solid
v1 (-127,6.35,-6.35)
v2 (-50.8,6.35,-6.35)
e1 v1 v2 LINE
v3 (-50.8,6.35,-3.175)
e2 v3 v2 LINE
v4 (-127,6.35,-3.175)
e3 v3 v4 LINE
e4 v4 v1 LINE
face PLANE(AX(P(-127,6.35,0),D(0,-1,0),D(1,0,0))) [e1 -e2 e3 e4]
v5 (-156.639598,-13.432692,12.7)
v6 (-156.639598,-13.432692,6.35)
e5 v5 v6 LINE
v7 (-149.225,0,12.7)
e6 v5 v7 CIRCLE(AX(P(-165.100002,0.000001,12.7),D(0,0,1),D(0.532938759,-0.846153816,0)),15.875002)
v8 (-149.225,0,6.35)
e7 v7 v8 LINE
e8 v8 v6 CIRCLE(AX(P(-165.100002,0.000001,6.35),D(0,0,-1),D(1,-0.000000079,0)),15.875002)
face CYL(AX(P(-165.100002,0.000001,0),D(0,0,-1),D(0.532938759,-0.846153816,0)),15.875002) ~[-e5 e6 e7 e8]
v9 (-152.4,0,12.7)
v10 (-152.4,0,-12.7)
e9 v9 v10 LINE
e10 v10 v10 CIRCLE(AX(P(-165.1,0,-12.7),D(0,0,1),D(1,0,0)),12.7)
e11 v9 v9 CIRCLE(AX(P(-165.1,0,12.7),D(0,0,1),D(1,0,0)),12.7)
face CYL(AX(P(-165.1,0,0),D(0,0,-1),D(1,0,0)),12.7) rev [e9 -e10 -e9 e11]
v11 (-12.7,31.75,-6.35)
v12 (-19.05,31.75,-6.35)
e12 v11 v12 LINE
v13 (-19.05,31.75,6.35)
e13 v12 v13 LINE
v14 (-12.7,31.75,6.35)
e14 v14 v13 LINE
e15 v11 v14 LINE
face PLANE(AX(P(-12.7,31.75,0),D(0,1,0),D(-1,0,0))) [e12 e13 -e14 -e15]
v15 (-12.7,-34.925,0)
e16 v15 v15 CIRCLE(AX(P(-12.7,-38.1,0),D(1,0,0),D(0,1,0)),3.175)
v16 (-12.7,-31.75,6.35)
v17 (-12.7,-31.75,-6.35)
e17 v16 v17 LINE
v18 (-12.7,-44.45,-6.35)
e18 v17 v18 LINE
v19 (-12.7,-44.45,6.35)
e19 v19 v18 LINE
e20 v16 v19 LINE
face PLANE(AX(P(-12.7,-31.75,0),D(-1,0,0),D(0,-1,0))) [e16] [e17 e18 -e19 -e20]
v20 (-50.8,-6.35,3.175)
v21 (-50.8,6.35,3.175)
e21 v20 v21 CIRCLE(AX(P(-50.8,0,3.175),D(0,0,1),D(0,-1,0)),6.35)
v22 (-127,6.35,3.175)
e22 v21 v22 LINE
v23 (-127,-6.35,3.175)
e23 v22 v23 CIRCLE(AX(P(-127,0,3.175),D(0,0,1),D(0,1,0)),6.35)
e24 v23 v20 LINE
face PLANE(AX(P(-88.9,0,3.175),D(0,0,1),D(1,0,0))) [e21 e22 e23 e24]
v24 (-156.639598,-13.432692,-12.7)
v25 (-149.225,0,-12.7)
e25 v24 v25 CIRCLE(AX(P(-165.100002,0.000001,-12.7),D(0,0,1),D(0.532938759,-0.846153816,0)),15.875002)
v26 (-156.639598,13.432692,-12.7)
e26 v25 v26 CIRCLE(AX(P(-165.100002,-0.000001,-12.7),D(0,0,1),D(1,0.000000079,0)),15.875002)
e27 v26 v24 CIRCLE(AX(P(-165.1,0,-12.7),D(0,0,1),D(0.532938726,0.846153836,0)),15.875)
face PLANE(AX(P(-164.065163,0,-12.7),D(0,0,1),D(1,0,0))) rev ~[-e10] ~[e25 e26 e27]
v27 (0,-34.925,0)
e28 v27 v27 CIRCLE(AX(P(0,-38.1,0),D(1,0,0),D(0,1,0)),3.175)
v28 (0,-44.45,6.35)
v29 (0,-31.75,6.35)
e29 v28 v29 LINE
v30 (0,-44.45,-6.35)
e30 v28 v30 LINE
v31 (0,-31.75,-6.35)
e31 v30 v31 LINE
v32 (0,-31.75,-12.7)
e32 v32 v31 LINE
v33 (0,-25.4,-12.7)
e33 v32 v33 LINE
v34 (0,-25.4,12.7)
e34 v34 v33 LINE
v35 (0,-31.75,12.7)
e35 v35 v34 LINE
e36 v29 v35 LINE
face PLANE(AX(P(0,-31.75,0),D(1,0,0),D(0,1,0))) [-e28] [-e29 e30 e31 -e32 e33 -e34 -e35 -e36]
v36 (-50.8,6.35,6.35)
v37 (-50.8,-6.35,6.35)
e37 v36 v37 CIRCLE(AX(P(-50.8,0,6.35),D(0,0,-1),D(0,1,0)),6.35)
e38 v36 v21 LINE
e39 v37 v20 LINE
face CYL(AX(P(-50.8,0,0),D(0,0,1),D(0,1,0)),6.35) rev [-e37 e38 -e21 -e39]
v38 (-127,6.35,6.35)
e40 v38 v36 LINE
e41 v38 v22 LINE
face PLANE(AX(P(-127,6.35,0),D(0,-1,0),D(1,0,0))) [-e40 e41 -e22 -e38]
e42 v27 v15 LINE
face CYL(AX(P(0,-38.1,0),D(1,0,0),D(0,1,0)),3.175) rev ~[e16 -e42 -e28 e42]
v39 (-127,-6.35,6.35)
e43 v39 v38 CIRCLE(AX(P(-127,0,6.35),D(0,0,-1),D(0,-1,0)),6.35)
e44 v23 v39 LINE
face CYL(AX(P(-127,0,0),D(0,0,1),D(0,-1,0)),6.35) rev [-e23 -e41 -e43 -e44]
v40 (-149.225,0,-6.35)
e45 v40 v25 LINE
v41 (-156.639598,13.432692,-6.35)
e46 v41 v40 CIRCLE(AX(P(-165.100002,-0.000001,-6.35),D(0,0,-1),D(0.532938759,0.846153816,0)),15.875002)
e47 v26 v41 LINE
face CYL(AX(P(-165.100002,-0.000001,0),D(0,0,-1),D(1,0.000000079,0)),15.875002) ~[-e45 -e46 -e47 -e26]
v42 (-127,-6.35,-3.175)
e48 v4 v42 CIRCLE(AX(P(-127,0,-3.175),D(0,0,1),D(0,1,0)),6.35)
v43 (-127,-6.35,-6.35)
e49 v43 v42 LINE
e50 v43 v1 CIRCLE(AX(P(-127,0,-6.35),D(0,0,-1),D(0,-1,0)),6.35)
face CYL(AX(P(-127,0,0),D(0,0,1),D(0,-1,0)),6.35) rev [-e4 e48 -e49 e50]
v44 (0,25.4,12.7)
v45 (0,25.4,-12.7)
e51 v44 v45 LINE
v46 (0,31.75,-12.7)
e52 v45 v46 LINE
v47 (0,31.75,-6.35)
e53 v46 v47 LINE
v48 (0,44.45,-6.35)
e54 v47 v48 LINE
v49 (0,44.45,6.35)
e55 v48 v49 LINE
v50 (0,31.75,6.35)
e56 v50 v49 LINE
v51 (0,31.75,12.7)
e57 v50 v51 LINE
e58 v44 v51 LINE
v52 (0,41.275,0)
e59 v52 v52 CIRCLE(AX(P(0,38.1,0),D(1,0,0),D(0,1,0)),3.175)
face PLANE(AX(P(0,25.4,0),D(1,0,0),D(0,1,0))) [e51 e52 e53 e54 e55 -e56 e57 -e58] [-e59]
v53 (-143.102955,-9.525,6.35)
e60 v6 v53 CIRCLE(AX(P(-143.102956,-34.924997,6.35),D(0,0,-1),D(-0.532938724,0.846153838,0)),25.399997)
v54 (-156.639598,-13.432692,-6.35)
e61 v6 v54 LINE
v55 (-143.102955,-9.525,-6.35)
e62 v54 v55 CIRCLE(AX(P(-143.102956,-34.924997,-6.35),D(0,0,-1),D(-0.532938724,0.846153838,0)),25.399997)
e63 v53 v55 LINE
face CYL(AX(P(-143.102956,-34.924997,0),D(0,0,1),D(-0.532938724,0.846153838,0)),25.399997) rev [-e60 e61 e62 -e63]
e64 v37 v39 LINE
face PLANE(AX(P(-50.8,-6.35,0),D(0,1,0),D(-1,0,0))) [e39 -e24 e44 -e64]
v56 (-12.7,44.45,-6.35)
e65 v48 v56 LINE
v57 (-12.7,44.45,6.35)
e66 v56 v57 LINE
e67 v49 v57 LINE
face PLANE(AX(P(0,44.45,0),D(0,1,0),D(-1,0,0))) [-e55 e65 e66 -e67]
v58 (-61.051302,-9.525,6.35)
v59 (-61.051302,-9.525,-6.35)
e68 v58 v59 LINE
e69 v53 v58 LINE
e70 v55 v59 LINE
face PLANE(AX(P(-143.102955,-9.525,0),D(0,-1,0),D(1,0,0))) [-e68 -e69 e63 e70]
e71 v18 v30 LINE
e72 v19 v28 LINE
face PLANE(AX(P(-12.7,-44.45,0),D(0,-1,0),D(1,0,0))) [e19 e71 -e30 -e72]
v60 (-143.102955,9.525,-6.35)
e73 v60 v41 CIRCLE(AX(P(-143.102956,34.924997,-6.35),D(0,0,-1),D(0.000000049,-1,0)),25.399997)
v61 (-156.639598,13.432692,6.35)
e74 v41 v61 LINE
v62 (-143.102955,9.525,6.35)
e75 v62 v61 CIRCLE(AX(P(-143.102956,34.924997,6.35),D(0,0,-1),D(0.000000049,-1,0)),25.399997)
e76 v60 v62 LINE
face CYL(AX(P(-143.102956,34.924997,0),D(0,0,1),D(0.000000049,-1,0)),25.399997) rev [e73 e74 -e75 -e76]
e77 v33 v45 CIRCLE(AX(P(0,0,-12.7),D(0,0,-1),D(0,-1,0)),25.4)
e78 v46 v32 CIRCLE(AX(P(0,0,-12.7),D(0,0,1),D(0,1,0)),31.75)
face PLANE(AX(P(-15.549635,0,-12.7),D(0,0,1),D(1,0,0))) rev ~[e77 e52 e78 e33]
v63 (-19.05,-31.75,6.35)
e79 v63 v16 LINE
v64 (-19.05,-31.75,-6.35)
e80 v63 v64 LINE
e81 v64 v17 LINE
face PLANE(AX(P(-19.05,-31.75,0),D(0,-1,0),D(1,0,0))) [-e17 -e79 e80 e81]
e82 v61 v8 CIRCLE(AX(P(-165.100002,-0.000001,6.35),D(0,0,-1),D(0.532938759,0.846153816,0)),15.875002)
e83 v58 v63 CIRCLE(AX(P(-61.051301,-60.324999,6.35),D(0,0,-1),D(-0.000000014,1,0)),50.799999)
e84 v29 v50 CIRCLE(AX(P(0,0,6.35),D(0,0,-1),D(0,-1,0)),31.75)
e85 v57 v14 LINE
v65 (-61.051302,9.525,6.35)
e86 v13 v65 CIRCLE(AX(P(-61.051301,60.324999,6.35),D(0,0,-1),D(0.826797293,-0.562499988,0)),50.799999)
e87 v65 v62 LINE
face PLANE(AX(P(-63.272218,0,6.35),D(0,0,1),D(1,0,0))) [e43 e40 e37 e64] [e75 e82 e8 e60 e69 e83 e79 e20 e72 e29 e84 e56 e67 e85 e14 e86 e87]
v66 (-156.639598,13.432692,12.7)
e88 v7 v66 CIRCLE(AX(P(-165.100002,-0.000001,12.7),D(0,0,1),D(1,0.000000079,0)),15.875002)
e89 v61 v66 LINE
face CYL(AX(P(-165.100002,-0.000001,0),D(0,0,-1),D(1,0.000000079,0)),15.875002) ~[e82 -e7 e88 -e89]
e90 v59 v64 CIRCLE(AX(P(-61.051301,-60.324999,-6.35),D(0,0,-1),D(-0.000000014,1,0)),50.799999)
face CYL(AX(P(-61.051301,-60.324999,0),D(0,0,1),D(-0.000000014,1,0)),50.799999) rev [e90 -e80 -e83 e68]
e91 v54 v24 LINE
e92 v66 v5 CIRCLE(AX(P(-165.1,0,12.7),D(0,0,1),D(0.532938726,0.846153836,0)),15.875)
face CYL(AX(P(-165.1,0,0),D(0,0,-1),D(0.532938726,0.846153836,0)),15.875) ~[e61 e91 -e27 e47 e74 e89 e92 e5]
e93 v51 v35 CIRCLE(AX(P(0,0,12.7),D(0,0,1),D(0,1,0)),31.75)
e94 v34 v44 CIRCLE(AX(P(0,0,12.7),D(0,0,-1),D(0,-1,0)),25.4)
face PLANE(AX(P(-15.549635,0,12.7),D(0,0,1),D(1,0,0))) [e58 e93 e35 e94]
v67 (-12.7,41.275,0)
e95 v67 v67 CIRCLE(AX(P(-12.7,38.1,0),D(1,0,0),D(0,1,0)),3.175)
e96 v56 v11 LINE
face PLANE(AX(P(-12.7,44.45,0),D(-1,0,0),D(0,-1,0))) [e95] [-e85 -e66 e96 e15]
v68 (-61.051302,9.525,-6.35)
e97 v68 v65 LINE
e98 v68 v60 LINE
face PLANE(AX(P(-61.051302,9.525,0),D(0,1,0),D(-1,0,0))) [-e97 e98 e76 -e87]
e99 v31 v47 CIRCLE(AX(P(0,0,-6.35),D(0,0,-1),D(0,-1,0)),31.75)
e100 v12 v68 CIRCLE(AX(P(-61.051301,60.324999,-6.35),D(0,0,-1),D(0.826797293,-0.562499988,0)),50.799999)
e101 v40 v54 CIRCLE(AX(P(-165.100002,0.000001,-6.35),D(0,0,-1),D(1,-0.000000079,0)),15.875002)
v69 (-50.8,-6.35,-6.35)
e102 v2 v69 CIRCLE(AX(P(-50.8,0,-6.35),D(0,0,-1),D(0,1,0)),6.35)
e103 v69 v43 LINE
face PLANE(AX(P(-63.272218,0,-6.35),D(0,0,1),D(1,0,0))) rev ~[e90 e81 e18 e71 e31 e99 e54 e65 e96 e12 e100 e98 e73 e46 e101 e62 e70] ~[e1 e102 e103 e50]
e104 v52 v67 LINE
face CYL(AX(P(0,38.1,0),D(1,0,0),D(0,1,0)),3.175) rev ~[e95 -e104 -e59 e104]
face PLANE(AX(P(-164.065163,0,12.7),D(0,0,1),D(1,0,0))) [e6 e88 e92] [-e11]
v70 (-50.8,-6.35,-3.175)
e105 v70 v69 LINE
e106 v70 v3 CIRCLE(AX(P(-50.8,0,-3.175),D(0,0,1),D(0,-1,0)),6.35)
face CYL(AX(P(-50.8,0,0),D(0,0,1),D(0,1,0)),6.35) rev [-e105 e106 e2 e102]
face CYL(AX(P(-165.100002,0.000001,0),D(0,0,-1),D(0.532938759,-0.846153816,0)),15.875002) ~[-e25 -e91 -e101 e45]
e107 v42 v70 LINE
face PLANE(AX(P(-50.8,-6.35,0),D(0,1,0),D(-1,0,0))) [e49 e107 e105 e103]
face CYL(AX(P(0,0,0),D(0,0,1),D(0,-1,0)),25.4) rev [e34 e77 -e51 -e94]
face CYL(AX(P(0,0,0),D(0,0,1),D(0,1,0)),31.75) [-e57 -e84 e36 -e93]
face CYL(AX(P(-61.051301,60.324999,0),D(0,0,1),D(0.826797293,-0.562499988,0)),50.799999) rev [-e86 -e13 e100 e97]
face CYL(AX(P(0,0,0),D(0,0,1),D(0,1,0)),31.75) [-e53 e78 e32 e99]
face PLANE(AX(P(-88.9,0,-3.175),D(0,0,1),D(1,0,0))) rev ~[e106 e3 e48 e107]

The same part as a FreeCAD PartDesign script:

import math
import FreeCAD as App
import Part
import Sketcher
from FreeCAD import Vector
Q = App.Units.Quantity

doc = App.newDocument("Part")
params = doc.addObject("Spreadsheet::Sheet", "Params")
for row, (alias, value) in enumerate([
    ("sketch1_radius", "1.9999999 in"),
    ("sketch1_radius2", "0.9999999 in"),
    ("sketch1_width", "3 in"),
    ("sketch1_radius3", "1.25 in"),
    ("sketch1_radius4", "0.25 in"),
    ("pad1_length", "0.5 in"),
    ("sketch2_diameter", "1 in"),
    ("sketch2_radius", "1 in"),
    ("sketch2_radius2", "1.25 in"),
    ("sketch2_radius3", "0.6250001 in"),
    ("pad2_length", "1 in"),
    ("sketch3_width", "3 in"),
    ("sketch3_radius", "0.25 in"),
    ("pad3_length", "0.25 in"),
    ("sketch4_diameter", "0.25 in"),
], start=1):
    params.set(f"A{row}", alias)
    params.set(f"B{row}", "=" + value)
    params.setAlias(f"B{row}", alias)

body = doc.addObject("PartDesign::Body", "Body")

sketch1 = body.newObject("Sketcher::SketchObject", "Sketch")
sketch1.AttachmentSupport = (doc.getObject("XY_Plane"), [""])
sketch1.MapMode = "FlatFace"
sketch1.addGeometry(Part.ArcOfCircle(Part.Circle(Vector(0, 0, 0), Vector(0, 0, 1), 32), math.radians(90), math.radians(270)), False)
sketch1.addGeometry(Part.LineSegment(Vector(0, 32, 0), Vector(0, 44, 0)), False)
sketch1.addGeometry(Part.LineSegment(Vector(0, 44, 0), Vector(-13, 44, 0)), False)
sketch1.addGeometry(Part.LineSegment(Vector(-13, 44, 0), Vector(-13, 32, 0)), False)
sketch1.addGeometry(Part.LineSegment(Vector(-13, 32, 0), Vector(-19, 32, 0)), False)
sketch1.addGeometry(Part.ArcOfCircle(Part.Circle(Vector(-61, 60, 0), Vector(0, 0, 1), 51), math.radians(-90), math.radians(-34)), False)
sketch1.addGeometry(Part.LineSegment(Vector(-61, 10, 0), Vector(-143, 10, 0)), False)
sketch1.addGeometry(Part.ArcOfCircle(Part.Circle(Vector(-143, 35, 0), Vector(0, 0, 1), 25), math.radians(-122), math.radians(-90)), False)
sketch1.addGeometry(Part.ArcOfCircle(Part.Circle(Vector(-165, 0, 0), Vector(0, 0, 1), 16), math.radians(0), math.radians(58)), False)
sketch1.addGeometry(Part.ArcOfCircle(Part.Circle(Vector(-165, 0, 0), Vector(0, 0, 1), 16), math.radians(-58), math.radians(0)), False)
sketch1.addGeometry(Part.ArcOfCircle(Part.Circle(Vector(-143, -35, 0), Vector(0, 0, 1), 25), math.radians(90), math.radians(122)), False)
sketch1.addGeometry(Part.LineSegment(Vector(-143, -10, 0), Vector(-61, -10, 0)), False)
sketch1.addGeometry(Part.ArcOfCircle(Part.Circle(Vector(-61, -60, 0), Vector(0, 0, 1), 51), math.radians(34), math.radians(90)), False)
sketch1.addGeometry(Part.LineSegment(Vector(-19, -32, 0), Vector(-13, -32, 0)), False)
sketch1.addGeometry(Part.LineSegment(Vector(-13, -32, 0), Vector(-13, -44, 0)), False)
sketch1.addGeometry(Part.LineSegment(Vector(-13, -44, 0), Vector(0, -44, 0)), False)
sketch1.addGeometry(Part.LineSegment(Vector(0, -44, 0), Vector(0, -32, 0)), False)
sketch1.addGeometry(Part.LineSegment(Vector(-51, -6, 0), Vector(-127, -6, 0)), False)
sketch1.addGeometry(Part.ArcOfCircle(Part.Circle(Vector(-127, 0, 0), Vector(0, 0, 1), 6), math.radians(90), math.radians(270)), False)
sketch1.addGeometry(Part.LineSegment(Vector(-127, 6, 0), Vector(-51, 6, 0)), False)
sketch1.addGeometry(Part.ArcOfCircle(Part.Circle(Vector(-51, 0, 0), Vector(0, 0, 1), 6), math.radians(-90), math.radians(90)), False)
sketch1.addConstraint(Sketcher.Constraint("Coincident", 0, 1, 1, 1))
sketch1.addConstraint(Sketcher.Constraint("Coincident", 1, 2, 2, 1))
sketch1.addConstraint(Sketcher.Constraint("Coincident", 2, 2, 3, 1))
sketch1.addConstraint(Sketcher.Constraint("Coincident", 3, 2, 4, 1))
sketch1.addConstraint(Sketcher.Constraint("Coincident", 4, 2, 5, 2))
sketch1.addConstraint(Sketcher.Constraint("Tangent", 5, 1, 6, 1))
sketch1.addConstraint(Sketcher.Constraint("Tangent", 6, 2, 7, 2))
sketch1.addConstraint(Sketcher.Constraint("Tangent", 7, 1, 8, 2))
sketch1.addConstraint(Sketcher.Constraint("Tangent", 8, 1, 9, 2))
sketch1.addConstraint(Sketcher.Constraint("Tangent", 9, 1, 10, 2))
sketch1.addConstraint(Sketcher.Constraint("Tangent", 10, 1, 11, 1))
sketch1.addConstraint(Sketcher.Constraint("Tangent", 11, 2, 12, 2))
sketch1.addConstraint(Sketcher.Constraint("Coincident", 12, 1, 13, 1))
sketch1.addConstraint(Sketcher.Constraint("Coincident", 13, 2, 14, 1))
sketch1.addConstraint(Sketcher.Constraint("Coincident", 14, 2, 15, 1))
sketch1.addConstraint(Sketcher.Constraint("Coincident", 15, 2, 16, 1))
sketch1.addConstraint(Sketcher.Constraint("Coincident", 16, 2, 0, 2))
sketch1.addConstraint(Sketcher.Constraint("Tangent", 17, 2, 18, 2))
sketch1.addConstraint(Sketcher.Constraint("Tangent", 18, 1, 19, 1))
sketch1.addConstraint(Sketcher.Constraint("Tangent", 19, 2, 20, 2))
sketch1.addConstraint(Sketcher.Constraint("Tangent", 20, 1, 17, 1))
sketch1.addConstraint(Sketcher.Constraint("Vertical", 1))
sketch1.addConstraint(Sketcher.Constraint("Horizontal", 2))
sketch1.addConstraint(Sketcher.Constraint("Vertical", 3))
sketch1.addConstraint(Sketcher.Constraint("Horizontal", 4))
sketch1.addConstraint(Sketcher.Constraint("Horizontal", 6))
sketch1.addConstraint(Sketcher.Constraint("Horizontal", 11))
sketch1.addConstraint(Sketcher.Constraint("Horizontal", 13))
sketch1.addConstraint(Sketcher.Constraint("Vertical", 14))
sketch1.addConstraint(Sketcher.Constraint("Horizontal", 15))
sketch1.addConstraint(Sketcher.Constraint("Vertical", 16))
sketch1.addConstraint(Sketcher.Constraint("Horizontal", 17))
sketch1.addConstraint(Sketcher.Constraint("Horizontal", 19))
sketch1.addConstraint(Sketcher.Constraint("Coincident", 0, 3, -1, 1))
sketch1.addConstraint(Sketcher.Constraint("Equal", 8, 9))
sketch1.addConstraint(Sketcher.Constraint("Equal", 7, 10))
sketch1.addConstraint(Sketcher.Constraint("Equal", 5, 12))
sketch1.addConstraint(Sketcher.Constraint("Symmetric", 1, 2, 15, 2, -1, 1))
sketch1.addConstraint(Sketcher.Constraint("Symmetric", 7, 3, 10, 3, -1))
sketch1.addConstraint(Sketcher.Constraint("Symmetric", 4, 2, 12, 1, -1))
sketch1.addConstraint(Sketcher.Constraint("PointOnObject", 18, 3, -1))
sketch1.addConstraint(Sketcher.Constraint("PointOnObject", 0, 1, -2))
sketch1.addConstraint(Sketcher.Constraint("PointOnObject", 8, 1, -1))
sketch1.addConstraint(Sketcher.Constraint("Horizontal", 0, 1, 3, 2))
sketch1.addConstraint(Sketcher.Constraint("Vertical", 3, 2, 13, 2))
sketch1.addConstraint(Sketcher.Constraint("Equal", 15, 1))
sketch1.addConstraint(Sketcher.Constraint("Radius", 5, Q("1.9999999 in")))
sketch1.addConstraint(Sketcher.Constraint("Radius", 7, Q("0.9999999 in")))
sketch1.addConstraint(Sketcher.Constraint("DistanceX", 17, 2, 17, 1, Q("3 in")))
sketch1.addConstraint(Sketcher.Constraint("Radius", 0, Q("1.25 in")))
sketch1.addConstraint(Sketcher.Constraint("Radius", 18, Q("0.25 in")))
sketch1.addConstraint(Sketcher.Constraint("DistanceX", 2, 2, 2, 1, Q("0.5 in")))
sketch1.addConstraint(Sketcher.Constraint("DistanceX", 18, 3, -1, 1, Q("5 in")))
sketch1.addConstraint(Sketcher.Constraint("Radius", 8, Q("0.6250001 in")))
sketch1.addConstraint(Sketcher.Constraint("DistanceX", 4, 2, 4, 1, Q("0.25 in")))
sketch1.addConstraint(Sketcher.Constraint("DistanceX", 8, 3, -1, 1, Q("6.5000001 in")))
sketch1.addConstraint(Sketcher.Constraint("DistanceY", 10, 3, 5, 3, Q("3.7499998 in")))
sketch1.setExpression("Constraints[46]", "Params.sketch1_radius")
sketch1.setExpression("Constraints[47]", "Params.sketch1_radius2")
sketch1.setExpression("Constraints[48]", "Params.sketch1_width")
sketch1.setExpression("Constraints[49]", "Params.sketch1_radius3")
sketch1.setExpression("Constraints[50]", "Params.sketch1_radius4")
pad1 = body.newObject("PartDesign::Pad", "Pad")
pad1.Profile = sketch1
pad1.setExpression("Length", "Params.pad1_length")
pad1.Midplane = True

sketch2 = body.newObject("Sketcher::SketchObject", "Sketch001")
sketch2.AttachmentSupport = (doc.getObject("XY_Plane"), [""])
sketch2.MapMode = "FlatFace"
sketch2.addGeometry(Part.ArcOfCircle(Part.Circle(Vector(-165, 0, 0), Vector(0, 0, 1), 16), math.radians(0), math.radians(58)), False)
sketch2.addGeometry(Part.ArcOfCircle(Part.Circle(Vector(-165, 0, 0), Vector(0, 0, 1), 16), math.radians(58), math.radians(302)), False)
sketch2.addGeometry(Part.ArcOfCircle(Part.Circle(Vector(-165, 0, 0), Vector(0, 0, 1), 16), math.radians(-58), math.radians(0)), False)
sketch2.addGeometry(Part.Circle(Vector(-165, 0, 0), Vector(0, 0, 1), 13), False)
sketch2.addGeometry(Part.LineSegment(Vector(0, 25, 0), Vector(0, 32, 0)), False)
sketch2.addGeometry(Part.ArcOfCircle(Part.Circle(Vector(0, 0, 0), Vector(0, 0, 1), 32), math.radians(90), math.radians(270)), False)
sketch2.addGeometry(Part.LineSegment(Vector(0, -32, 0), Vector(0, -25, 0)), False)
sketch2.addGeometry(Part.ArcOfCircle(Part.Circle(Vector(0, 0, 0), Vector(0, 0, 1), 25), math.radians(90), math.radians(270)), False)
sketch2.addConstraint(Sketcher.Constraint("Tangent", 0, 2, 1, 1))
sketch2.addConstraint(Sketcher.Constraint("Tangent", 1, 2, 2, 1))
sketch2.addConstraint(Sketcher.Constraint("Tangent", 2, 2, 0, 1))
sketch2.addConstraint(Sketcher.Constraint("Coincident", 4, 2, 5, 1))
sketch2.addConstraint(Sketcher.Constraint("Coincident", 5, 2, 6, 1))
sketch2.addConstraint(Sketcher.Constraint("Coincident", 6, 2, 7, 2))
sketch2.addConstraint(Sketcher.Constraint("Coincident", 7, 1, 4, 1))
sketch2.addConstraint(Sketcher.Constraint("Vertical", 4))
sketch2.addConstraint(Sketcher.Constraint("Vertical", 6))
sketch2.addConstraint(Sketcher.Constraint("Coincident", 5, 3, -1, 1))
sketch2.addConstraint(Sketcher.Constraint("Coincident", 7, 3, -1, 1))
sketch2.addConstraint(Sketcher.Constraint("Coincident", 3, 3, 0, 3))
sketch2.addConstraint(Sketcher.Constraint("Symmetric", 0, 2, 1, 2, -1))
sketch2.addConstraint(Sketcher.Constraint("PointOnObject", 2, 2, -1))
sketch2.addConstraint(Sketcher.Constraint("PointOnObject", 4, 2, -2))
sketch2.addConstraint(Sketcher.Constraint("PointOnObject", 5, 2, -2))
sketch2.addConstraint(Sketcher.Constraint("Diameter", 3, Q("1 in")))
sketch2.addConstraint(Sketcher.Constraint("Radius", 7, Q("1 in")))
sketch2.addConstraint(Sketcher.Constraint("Radius", 5, Q("1.25 in")))
sketch2.addConstraint(Sketcher.Constraint("Radius", 0, Q("0.6250001 in")))
sketch2.addConstraint(Sketcher.Constraint("DistanceX", 0, 3, -1, 1, Q("6.5000001 in")))
sketch2.addConstraint(Sketcher.Constraint("DistanceY", 2, 3, 0, 2, 13.432691))
sketch2.setExpression("Constraints[16]", "Params.sketch2_diameter")
sketch2.setExpression("Constraints[17]", "Params.sketch2_radius")
sketch2.setExpression("Constraints[18]", "Params.sketch2_radius2")
sketch2.setExpression("Constraints[19]", "Params.sketch2_radius3")
pad2 = body.newObject("PartDesign::Pad", "Pad001")
pad2.Profile = sketch2
pad2.setExpression("Length", "Params.pad2_length")
pad2.Midplane = True

sketch3 = body.newObject("Sketcher::SketchObject", "Sketch002")
sketch3.AttachmentSupport = (doc.getObject("XY_Plane"), [""])
sketch3.MapMode = "FlatFace"
sketch3.addGeometry(Part.LineSegment(Vector(-51, 6, 0), Vector(-127, 6, 0)), False)
sketch3.addGeometry(Part.ArcOfCircle(Part.Circle(Vector(-127, 0, 0), Vector(0, 0, 1), 6), math.radians(90), math.radians(270)), False)
sketch3.addGeometry(Part.LineSegment(Vector(-127, -6, 0), Vector(-51, -6, 0)), False)
sketch3.addGeometry(Part.ArcOfCircle(Part.Circle(Vector(-51, 0, 0), Vector(0, 0, 1), 6), math.radians(-90), math.radians(90)), False)
sketch3.addConstraint(Sketcher.Constraint("Tangent", 0, 2, 1, 1))
sketch3.addConstraint(Sketcher.Constraint("Tangent", 1, 2, 2, 1))
sketch3.addConstraint(Sketcher.Constraint("Tangent", 2, 2, 3, 1))
sketch3.addConstraint(Sketcher.Constraint("Tangent", 3, 2, 0, 1))
sketch3.addConstraint(Sketcher.Constraint("Horizontal", 0))
sketch3.addConstraint(Sketcher.Constraint("Horizontal", 2))
sketch3.addConstraint(Sketcher.Constraint("PointOnObject", 1, 3, -1))
sketch3.addConstraint(Sketcher.Constraint("DistanceX", 0, 2, 0, 1, Q("3 in")))
sketch3.addConstraint(Sketcher.Constraint("Radius", 1, Q("0.25 in")))
sketch3.addConstraint(Sketcher.Constraint("DistanceX", 1, 3, -1, 1, Q("5 in")))
sketch3.setExpression("Constraints[7]", "Params.sketch3_width")
sketch3.setExpression("Constraints[8]", "Params.sketch3_radius")
pad3 = body.newObject("PartDesign::Pad", "Pad002")
pad3.Profile = sketch3
pad3.setExpression("Length", "Params.pad3_length")
pad3.Midplane = True

sketch4 = body.newObject("Sketcher::SketchObject", "Sketch003")
sketch4.AttachmentSupport = (doc.getObject("YZ_Plane"), [""])
sketch4.MapMode = "FlatFace"
sketch4.addGeometry(Part.Circle(Vector(-38.1, 0, 0), Vector(0, 0, 1), 3.2), False)
sketch4.addGeometry(Part.Circle(Vector(38.1, 0, 0), Vector(0, 0, 1), 3.2), False)
sketch4.addConstraint(Sketcher.Constraint("Equal", 0, 1))
sketch4.addConstraint(Sketcher.Constraint("Symmetric", 0, 3, 1, 3, -1, 1))
sketch4.addConstraint(Sketcher.Constraint("PointOnObject", 0, 3, -1))
sketch4.addConstraint(Sketcher.Constraint("Diameter", 0, Q("0.25 in")))
sketch4.addConstraint(Sketcher.Constraint("DistanceX", 0, 3, 1, 3, Q("3 in")))
sketch4.setExpression("Constraints[3]", "Params.sketch4_diameter")
pocket1 = body.newObject("PartDesign::Pocket", "Pocket")
pocket1.Profile = sketch4
pocket1.Type = "ThroughAll"

doc.recompute()
